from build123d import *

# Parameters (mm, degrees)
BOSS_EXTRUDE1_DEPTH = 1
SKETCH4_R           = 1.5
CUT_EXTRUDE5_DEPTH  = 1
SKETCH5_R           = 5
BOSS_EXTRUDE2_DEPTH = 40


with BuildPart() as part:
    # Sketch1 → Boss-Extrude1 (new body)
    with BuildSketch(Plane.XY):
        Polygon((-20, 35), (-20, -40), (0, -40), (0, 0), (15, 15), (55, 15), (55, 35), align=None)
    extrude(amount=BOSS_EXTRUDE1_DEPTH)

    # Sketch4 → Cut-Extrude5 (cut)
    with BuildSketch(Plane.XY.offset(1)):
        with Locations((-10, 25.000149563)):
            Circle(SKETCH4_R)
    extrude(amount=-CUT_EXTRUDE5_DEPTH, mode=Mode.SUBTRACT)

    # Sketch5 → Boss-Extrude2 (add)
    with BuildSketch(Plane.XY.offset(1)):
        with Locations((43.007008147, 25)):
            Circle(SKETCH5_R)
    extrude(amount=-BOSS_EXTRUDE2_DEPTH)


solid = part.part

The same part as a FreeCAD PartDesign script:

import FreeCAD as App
import Part
import Sketcher
from FreeCAD import Vector
Q = App.Units.Quantity


def add_polygon(sketch, points):
    """Adds a closed chain of lines whose ends are joined by coincident constraints."""
    first, n = sketch.GeometryCount, len(points)
    for a, b in zip(points, points[1:] + points[:1]):
        sketch.addGeometry(Part.LineSegment(App.Vector(*a, 0), App.Vector(*b, 0)), False)
    for i in range(n):
        sketch.addConstraint(Sketcher.Constraint("Coincident", first + i, 2, first + (i + 1) % n, 1))

doc = App.newDocument("Part")
params = doc.addObject("Spreadsheet::Sheet", "Params")
for row, (alias, value) in enumerate([
    ("sketch1_width", "20 mm"),
    ("sketch1_width2", "40 mm"),
    ("sketch1_width3", "75 mm"),
    ("pad1_length", "1 mm"),
    ("sketch2_diameter", "3 mm"),
    ("pocket1_length", "1 mm"),
    ("sketch3_diameter", "10 mm"),
    ("pad2_length", "40 mm"),
], start=1):
    params.set(f"A{row}", alias)
    params.set(f"B{row}", "=" + value)
    params.setAlias(f"B{row}", alias)

body = doc.addObject("PartDesign::Body", "Body")

sketch1 = body.newObject("Sketcher::SketchObject", "Sketch")
sketch1.AttachmentSupport = (doc.getObject("XY_Plane"), [""])
sketch1.MapMode = "FlatFace"
add_polygon(sketch1, [(-20, 35), (-20, -40), (0, -40), (0, 0), (15, 15), (55, 15), (55, 35)])
sketch1.addConstraint(Sketcher.Constraint("Vertical", 0))
sketch1.addConstraint(Sketcher.Constraint("Horizontal", 1))
sketch1.addConstraint(Sketcher.Constraint("Vertical", 2))
sketch1.addConstraint(Sketcher.Constraint("Horizontal", 4))
sketch1.addConstraint(Sketcher.Constraint("Vertical", 5))
sketch1.addConstraint(Sketcher.Constraint("Horizontal", 6))
sketch1.addConstraint(Sketcher.Constraint("Coincident", 2, 2, -1, 1))
sketch1.addConstraint(Sketcher.Constraint("Equal", 6, 0))
sketch1.addConstraint(Sketcher.Constraint("Equal", 4, 2))
sketch1.addConstraint(Sketcher.Constraint("Equal", 1, 5))
sketch1.addConstraint(Sketcher.Constraint("DistanceX", 1, 1, 1, 2, Q("20 mm")))
sketch1.addConstraint(Sketcher.Constraint("DistanceX", 4, 1, 4, 2, Q("40 mm")))
sketch1.addConstraint(Sketcher.Constraint("DistanceX", 6, 2, 6, 1, Q("75 mm")))
sketch1.setExpression("Constraints[17]", "Params.sketch1_width")
sketch1.setExpression("Constraints[18]", "Params.sketch1_width2")
sketch1.setExpression("Constraints[19]", "Params.sketch1_width3")
pad1 = body.newObject("PartDesign::Pad", "Pad")
pad1.Profile = sketch1
pad1.setExpression("Length", "Params.pad1_length")

sketch2 = body.newObject("Sketcher::SketchObject", "Sketch001")
sketch2.AttachmentSupport = (doc.getObject("XY_Plane"), [""])
sketch2.MapMode = "FlatFace"
sketch2.AttachmentOffset = App.Placement(Vector(0, 0, 1), App.Rotation())
sketch2.addGeometry(Part.Circle(Vector(-10, 25.00015, 0), Vector(0, 0, 1), 1.5), False)
sketch2.addConstraint(Sketcher.Constraint("Diameter", 0, Q("3 mm")))
sketch2.addConstraint(Sketcher.Constraint("DistanceX", 0, 3, -1, 1, Q("10 mm")))
sketch2.addConstraint(Sketcher.Constraint("DistanceY", -1, 1, 0, 3, Q("25.00015 mm")))
sketch2.setExpression("Constraints[0]", "Params.sketch2_diameter")
pocket1 = body.newObject("PartDesign::Pocket", "Pocket")
pocket1.Profile = sketch2
pocket1.setExpression("Length", "Params.pocket1_length")

sketch3 = body.newObject("Sketcher::SketchObject", "Sketch002")
sketch3.AttachmentSupport = (doc.getObject("XY_Plane"), [""])
sketch3.MapMode = "FlatFace"
sketch3.AttachmentOffset = App.Placement(Vector(0, 0, 1), App.Rotation())
sketch3.addGeometry(Part.Circle(Vector(43.007008, 25, 0), Vector(0, 0, 1), 5), False)
sketch3.addConstraint(Sketcher.Constraint("Diameter", 0, Q("10 mm")))
sketch3.addConstraint(Sketcher.Constraint("DistanceY", -1, 1, 0, 3, Q("25 mm")))
sketch3.addConstraint(Sketcher.Constraint("DistanceX", -1, 1, 0, 3, Q("43.007008 mm")))
sketch3.setExpression("Constraints[0]", "Params.sketch3_diameter")
pad2 = body.newObject("PartDesign::Pad", "Pad001")
pad2.Profile = sketch3
pad2.setExpression("Length", "Params.pad2_length")
pad2.Reversed = True

doc.recompute()
